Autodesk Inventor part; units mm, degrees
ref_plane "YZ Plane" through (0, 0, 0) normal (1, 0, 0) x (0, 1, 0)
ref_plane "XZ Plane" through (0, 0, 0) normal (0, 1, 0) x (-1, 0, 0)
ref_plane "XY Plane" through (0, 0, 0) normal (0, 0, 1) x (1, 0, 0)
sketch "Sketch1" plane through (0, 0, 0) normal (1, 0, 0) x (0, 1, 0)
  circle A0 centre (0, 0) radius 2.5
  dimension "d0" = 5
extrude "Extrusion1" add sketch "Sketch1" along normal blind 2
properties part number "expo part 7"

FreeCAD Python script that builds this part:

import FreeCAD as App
import Part
import Sketcher

V = App.Vector
Q = App.Units.Quantity

doc = App.newDocument("Part")
body = doc.addObject("PartDesign::Body", "Body")

sketch1 = body.newObject("Sketcher::SketchObject", "Sketch")
sketch1.AttachmentSupport = (doc.getObject("YZ_Plane"), [""])
sketch1.MapMode = "FlatFace"
sketch1.addGeometry(Part.Circle(V(0, 0, 0), V(0, 0, 1), 2.5), False)
sketch1.addConstraint([
    Sketcher.Constraint("Coincident", 0, 3, -1, 1),
    Sketcher.Constraint("Diameter", 0, Q("5 mm")),
])
pad1 = body.newObject("PartDesign::Pad", "Pad")
pad1.Profile = sketch1
pad1.Length = 2

doc.recompute()
